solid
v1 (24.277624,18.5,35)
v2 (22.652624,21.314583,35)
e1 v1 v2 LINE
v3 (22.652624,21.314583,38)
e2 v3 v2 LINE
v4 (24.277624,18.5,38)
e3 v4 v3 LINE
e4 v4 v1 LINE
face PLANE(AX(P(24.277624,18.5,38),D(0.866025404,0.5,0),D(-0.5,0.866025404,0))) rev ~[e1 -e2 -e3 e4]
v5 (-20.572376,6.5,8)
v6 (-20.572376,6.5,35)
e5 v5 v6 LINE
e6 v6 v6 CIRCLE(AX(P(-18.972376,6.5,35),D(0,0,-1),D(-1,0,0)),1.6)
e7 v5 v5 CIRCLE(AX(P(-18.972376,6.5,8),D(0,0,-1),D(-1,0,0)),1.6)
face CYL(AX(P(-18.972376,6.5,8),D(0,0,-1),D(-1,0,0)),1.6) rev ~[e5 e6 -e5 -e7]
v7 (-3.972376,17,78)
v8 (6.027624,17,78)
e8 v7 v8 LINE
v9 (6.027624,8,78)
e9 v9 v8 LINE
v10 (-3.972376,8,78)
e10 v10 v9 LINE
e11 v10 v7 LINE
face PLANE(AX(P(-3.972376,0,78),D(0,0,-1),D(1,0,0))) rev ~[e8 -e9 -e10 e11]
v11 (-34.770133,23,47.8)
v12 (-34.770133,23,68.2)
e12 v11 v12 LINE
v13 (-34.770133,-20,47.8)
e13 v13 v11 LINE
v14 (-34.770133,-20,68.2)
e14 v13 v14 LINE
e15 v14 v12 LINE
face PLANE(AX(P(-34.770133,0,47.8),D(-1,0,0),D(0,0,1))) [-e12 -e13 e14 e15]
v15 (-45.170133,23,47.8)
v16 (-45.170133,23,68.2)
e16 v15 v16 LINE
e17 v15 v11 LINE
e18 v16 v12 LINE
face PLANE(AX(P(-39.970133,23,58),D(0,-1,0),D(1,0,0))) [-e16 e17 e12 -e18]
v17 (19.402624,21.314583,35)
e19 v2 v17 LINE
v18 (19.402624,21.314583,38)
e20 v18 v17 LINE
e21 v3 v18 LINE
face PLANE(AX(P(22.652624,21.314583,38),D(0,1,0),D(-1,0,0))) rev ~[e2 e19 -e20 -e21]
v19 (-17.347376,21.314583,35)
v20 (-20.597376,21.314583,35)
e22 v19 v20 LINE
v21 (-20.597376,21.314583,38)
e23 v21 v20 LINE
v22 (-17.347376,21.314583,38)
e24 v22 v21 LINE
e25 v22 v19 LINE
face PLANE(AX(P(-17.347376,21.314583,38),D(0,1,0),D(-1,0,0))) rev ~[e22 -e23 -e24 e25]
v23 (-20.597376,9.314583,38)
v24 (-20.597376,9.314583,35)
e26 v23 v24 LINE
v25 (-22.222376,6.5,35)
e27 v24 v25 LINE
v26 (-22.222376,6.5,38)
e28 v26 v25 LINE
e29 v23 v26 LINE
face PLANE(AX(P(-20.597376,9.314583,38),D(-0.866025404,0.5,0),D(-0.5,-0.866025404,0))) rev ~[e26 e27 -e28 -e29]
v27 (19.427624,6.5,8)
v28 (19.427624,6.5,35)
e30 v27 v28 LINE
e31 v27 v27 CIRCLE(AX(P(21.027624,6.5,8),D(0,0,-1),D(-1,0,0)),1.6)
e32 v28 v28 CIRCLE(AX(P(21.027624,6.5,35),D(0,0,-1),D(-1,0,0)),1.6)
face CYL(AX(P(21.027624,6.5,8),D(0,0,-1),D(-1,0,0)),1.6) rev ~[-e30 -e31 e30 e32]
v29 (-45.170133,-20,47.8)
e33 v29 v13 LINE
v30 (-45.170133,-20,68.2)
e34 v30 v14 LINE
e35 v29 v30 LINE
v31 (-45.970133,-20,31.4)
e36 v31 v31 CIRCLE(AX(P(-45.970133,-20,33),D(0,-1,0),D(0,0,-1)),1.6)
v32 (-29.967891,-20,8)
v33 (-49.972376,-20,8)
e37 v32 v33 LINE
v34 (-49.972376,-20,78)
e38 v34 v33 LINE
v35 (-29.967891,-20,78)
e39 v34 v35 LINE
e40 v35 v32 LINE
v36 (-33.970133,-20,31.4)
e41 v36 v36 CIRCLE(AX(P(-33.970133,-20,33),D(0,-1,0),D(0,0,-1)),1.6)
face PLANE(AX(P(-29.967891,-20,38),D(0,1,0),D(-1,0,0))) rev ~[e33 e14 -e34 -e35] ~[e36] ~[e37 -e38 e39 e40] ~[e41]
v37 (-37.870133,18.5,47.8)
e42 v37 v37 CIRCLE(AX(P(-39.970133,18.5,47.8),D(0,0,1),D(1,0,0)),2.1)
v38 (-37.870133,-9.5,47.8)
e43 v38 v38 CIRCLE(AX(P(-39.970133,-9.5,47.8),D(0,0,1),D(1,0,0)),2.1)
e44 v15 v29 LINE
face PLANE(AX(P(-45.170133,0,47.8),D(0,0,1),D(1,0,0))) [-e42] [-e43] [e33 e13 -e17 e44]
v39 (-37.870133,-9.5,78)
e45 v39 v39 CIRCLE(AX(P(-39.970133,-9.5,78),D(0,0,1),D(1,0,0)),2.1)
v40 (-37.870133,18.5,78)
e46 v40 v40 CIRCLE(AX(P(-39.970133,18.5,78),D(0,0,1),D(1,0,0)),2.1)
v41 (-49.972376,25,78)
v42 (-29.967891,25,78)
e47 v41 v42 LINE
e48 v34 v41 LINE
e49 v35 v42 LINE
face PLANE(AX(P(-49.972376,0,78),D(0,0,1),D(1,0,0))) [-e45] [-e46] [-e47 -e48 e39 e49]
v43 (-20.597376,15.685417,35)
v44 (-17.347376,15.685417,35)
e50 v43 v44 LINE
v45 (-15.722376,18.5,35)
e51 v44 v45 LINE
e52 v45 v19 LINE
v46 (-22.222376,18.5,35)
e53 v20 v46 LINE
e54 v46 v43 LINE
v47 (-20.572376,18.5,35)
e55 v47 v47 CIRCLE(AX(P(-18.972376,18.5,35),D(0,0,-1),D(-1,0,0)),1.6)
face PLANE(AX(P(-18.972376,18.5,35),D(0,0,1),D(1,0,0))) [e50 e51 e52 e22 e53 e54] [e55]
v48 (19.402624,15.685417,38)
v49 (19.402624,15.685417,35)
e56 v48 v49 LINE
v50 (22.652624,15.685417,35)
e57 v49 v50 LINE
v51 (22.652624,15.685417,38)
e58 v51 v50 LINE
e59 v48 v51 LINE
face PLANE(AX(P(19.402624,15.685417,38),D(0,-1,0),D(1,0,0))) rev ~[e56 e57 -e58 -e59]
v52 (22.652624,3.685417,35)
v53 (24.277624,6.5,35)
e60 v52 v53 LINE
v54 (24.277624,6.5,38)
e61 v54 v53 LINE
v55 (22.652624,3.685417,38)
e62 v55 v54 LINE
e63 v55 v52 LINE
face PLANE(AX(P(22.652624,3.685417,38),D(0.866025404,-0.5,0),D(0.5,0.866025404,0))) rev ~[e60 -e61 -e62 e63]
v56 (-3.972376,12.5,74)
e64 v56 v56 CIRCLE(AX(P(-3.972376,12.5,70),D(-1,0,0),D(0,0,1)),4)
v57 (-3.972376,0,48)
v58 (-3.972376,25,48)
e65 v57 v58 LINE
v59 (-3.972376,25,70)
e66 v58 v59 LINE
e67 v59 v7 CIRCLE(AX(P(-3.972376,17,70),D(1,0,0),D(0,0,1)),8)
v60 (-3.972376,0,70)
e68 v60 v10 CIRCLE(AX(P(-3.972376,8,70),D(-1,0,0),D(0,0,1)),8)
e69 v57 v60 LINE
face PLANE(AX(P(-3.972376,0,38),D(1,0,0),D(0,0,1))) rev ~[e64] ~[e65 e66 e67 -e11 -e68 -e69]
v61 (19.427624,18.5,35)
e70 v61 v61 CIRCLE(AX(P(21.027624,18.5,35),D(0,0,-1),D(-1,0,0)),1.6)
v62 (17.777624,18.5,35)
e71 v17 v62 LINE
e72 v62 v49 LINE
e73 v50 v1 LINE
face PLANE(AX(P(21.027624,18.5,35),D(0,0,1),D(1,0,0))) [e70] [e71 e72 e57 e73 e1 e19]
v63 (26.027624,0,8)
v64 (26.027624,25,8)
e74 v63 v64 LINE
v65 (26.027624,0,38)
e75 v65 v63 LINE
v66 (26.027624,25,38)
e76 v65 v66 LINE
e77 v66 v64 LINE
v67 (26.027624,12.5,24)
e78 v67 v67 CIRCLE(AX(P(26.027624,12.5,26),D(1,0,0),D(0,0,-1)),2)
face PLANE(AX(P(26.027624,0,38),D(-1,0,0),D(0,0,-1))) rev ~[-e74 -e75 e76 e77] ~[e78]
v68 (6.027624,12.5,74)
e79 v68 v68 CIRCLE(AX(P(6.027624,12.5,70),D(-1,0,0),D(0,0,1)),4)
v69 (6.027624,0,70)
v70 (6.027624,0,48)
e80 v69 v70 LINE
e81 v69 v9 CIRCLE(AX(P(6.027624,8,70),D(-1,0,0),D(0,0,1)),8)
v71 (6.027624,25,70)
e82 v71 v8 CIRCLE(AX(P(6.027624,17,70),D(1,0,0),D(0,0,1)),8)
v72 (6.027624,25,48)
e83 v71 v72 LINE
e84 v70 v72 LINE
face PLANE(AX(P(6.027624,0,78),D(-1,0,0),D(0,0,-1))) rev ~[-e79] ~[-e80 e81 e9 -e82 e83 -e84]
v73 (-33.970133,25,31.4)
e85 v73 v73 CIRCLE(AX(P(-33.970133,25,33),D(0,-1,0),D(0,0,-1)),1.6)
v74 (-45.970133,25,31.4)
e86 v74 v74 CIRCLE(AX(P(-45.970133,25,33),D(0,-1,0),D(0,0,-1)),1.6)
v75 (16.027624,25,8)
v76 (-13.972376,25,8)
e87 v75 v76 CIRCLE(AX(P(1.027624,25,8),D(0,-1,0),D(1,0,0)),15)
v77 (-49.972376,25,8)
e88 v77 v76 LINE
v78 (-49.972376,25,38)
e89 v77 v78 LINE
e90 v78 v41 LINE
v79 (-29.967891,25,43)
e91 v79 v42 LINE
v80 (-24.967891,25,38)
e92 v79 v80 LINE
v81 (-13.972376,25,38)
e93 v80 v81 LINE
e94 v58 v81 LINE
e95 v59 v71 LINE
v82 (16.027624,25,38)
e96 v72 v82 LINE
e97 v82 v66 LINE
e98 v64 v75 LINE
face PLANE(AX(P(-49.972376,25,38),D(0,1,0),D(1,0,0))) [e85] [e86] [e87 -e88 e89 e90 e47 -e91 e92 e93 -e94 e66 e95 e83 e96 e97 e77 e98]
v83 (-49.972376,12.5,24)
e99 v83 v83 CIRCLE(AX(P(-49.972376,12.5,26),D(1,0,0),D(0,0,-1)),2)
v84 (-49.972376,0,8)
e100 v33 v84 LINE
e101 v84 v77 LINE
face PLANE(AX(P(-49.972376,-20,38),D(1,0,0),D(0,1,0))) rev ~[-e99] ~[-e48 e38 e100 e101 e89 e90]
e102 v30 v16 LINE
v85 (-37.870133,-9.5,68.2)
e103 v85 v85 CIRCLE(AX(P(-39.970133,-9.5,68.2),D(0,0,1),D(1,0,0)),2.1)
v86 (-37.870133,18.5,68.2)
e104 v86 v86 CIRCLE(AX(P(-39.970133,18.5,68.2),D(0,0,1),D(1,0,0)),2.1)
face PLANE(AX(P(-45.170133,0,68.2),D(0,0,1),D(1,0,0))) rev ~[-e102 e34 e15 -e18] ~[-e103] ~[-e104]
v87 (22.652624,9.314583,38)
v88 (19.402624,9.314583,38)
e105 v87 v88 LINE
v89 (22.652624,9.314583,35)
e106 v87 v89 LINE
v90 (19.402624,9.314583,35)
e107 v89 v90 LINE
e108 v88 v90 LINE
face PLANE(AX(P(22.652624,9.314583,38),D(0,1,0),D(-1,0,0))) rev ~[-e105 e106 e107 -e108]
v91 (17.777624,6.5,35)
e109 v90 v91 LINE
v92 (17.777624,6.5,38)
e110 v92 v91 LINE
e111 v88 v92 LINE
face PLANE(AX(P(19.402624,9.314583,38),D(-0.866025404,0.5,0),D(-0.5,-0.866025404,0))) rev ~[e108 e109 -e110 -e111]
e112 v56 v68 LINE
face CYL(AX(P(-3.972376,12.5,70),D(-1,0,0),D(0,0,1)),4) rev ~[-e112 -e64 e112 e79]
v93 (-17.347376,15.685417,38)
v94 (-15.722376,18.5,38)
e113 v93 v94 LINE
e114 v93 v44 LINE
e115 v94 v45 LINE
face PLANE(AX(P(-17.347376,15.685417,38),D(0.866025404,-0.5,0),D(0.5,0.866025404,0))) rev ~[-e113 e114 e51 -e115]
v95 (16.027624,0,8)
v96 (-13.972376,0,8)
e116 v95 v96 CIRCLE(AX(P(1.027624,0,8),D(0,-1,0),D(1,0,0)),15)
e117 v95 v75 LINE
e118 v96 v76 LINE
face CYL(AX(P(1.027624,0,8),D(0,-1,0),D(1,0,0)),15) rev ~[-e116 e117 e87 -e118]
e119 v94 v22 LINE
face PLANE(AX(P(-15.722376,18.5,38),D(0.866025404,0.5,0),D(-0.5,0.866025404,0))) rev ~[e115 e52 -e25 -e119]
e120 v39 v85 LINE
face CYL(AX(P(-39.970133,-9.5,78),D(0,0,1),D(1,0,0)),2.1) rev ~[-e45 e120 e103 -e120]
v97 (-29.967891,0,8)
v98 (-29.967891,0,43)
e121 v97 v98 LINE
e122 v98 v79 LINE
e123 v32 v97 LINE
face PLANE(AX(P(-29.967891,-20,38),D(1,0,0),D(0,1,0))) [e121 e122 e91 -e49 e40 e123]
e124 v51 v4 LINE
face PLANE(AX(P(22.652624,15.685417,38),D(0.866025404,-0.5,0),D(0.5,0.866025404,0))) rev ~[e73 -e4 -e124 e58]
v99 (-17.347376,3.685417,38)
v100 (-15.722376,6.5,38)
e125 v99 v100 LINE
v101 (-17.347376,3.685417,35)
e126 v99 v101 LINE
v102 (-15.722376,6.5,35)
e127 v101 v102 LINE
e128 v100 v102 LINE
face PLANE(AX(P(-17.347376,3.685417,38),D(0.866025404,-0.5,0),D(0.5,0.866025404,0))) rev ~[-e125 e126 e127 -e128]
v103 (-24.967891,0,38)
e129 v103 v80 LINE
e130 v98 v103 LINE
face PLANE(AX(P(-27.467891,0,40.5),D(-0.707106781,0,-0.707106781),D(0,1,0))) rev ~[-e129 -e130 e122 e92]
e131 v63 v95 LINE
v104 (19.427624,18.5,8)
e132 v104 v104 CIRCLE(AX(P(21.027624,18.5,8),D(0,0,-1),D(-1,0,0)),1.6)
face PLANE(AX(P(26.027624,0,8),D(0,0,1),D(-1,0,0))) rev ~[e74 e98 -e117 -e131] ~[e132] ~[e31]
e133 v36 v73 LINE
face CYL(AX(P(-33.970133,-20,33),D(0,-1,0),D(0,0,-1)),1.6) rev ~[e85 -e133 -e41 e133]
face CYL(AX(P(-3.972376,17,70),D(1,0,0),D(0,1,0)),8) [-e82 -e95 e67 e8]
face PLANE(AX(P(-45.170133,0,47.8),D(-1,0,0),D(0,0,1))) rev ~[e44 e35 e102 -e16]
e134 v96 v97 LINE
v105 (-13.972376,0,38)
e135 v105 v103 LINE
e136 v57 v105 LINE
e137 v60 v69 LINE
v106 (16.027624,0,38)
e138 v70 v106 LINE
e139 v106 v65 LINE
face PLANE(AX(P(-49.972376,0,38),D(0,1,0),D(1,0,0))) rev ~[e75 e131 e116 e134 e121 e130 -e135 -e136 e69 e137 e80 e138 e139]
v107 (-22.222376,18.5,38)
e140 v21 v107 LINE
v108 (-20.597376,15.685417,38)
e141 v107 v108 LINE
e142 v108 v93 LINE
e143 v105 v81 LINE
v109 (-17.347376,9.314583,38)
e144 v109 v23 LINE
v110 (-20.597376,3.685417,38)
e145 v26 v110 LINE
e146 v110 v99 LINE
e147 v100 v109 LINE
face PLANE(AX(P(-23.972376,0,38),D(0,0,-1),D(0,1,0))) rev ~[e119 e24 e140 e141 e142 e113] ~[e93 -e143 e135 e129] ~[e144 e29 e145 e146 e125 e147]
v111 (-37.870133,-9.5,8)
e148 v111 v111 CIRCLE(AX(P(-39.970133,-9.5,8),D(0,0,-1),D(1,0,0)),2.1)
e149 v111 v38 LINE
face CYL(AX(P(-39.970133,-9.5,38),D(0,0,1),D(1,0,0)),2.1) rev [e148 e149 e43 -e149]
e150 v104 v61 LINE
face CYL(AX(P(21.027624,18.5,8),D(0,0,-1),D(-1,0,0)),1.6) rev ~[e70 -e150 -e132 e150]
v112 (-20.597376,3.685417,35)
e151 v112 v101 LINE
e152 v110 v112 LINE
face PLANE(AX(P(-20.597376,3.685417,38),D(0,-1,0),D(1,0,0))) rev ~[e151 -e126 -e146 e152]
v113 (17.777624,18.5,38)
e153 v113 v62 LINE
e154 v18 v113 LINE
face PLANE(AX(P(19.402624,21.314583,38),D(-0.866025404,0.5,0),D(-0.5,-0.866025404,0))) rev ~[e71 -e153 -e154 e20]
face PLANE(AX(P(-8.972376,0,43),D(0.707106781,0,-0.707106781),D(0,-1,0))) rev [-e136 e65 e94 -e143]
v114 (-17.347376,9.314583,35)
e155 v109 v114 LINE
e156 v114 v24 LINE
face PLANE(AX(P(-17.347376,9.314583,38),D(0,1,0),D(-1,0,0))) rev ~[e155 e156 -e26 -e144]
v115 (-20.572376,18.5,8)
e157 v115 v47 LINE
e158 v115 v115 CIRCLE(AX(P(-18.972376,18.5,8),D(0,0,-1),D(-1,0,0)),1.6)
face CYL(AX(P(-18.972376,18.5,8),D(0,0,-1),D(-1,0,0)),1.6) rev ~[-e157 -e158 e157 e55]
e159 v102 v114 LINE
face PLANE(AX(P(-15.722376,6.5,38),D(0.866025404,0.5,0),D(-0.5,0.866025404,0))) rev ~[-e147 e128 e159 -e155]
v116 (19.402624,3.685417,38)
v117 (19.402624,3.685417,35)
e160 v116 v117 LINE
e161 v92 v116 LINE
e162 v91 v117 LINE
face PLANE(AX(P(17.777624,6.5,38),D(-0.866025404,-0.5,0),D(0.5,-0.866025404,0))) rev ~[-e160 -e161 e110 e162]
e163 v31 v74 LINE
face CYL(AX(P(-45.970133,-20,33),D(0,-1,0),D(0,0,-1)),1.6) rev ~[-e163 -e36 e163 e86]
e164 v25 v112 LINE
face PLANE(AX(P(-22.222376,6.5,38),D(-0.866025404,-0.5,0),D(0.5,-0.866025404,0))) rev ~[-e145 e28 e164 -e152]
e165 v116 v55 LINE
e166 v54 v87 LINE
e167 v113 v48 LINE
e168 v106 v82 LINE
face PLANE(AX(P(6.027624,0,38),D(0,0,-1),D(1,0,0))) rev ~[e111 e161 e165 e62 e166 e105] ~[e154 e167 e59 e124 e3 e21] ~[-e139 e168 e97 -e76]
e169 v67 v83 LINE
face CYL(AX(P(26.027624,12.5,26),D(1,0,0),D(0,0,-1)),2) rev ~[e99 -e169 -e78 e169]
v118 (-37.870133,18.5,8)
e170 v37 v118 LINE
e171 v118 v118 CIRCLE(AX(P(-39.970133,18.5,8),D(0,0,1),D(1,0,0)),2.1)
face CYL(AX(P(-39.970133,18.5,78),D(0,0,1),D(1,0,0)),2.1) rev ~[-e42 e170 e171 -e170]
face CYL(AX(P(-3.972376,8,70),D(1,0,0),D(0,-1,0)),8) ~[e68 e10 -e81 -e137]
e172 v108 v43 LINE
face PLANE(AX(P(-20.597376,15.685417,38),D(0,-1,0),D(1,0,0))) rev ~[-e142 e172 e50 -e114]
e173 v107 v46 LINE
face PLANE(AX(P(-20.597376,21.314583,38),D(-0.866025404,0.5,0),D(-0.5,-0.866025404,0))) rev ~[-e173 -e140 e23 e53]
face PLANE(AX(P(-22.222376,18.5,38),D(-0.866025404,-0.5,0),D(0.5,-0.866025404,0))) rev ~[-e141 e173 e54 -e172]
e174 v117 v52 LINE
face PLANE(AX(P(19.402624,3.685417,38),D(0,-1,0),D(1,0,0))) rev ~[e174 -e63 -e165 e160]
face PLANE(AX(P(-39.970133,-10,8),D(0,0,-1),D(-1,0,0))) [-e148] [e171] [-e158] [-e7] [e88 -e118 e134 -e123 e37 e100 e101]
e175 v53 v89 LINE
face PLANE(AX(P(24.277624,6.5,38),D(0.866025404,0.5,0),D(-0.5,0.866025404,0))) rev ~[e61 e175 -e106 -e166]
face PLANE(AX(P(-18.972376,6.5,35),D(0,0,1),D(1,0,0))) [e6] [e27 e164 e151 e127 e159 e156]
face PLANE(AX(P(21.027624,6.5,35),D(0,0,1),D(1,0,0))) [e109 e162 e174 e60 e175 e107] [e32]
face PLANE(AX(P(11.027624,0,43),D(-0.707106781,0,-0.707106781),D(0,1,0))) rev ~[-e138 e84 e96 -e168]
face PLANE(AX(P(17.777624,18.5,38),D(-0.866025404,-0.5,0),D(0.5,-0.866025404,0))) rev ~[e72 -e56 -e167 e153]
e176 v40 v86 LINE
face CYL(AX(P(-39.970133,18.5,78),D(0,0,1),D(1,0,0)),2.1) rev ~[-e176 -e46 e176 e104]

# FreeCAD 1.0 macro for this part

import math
import FreeCAD as App
import Part
import Sketcher

V = App.Vector
Q = App.Units.Quantity


def edges_at(feature, points):
    """Names of the edges that pass closest to the given points."""
    edges = feature.Shape.Edges
    near = lambda p: min(range(len(edges)), key=lambda i: edges[i].distToShape(Part.Vertex(*p))[0])
    return sorted({f"Edge{near(p) + 1}" for p in points})

doc = App.newDocument("Part")
params = doc.addObject("Spreadsheet::Sheet", "Params")
for row, (alias, value) in enumerate([
    ("sketch1_radius", "15 mm"),
    ("sketch1_width", "10 mm"),
    ("sketch1_height", "30 mm"),
    ("sketch1_height2", "40 mm"),
    ("pad1_length", "25 mm"),
    ("sketch2_diameter", "8 mm"),
    ("sketch3_diameter", "3.2 mm"),
    ("sketch4_width", "3.25 mm"),
    ("pocket3_length", "3 mm"),
    ("fillet_radius", "8 mm"),
    ("chamfer_size", "10 mm"),
    ("sketch5_width", "25 mm"),
    ("sketch5_height", "30 mm"),
    ("pad2_length", "26 mm"),
    ("sketch6_height", "25 mm"),
    ("pad3_length", "40 mm"),
    ("sketch7_width", "10.4 mm"),
    ("sketch7_height", "20.4 mm"),
    ("pocket4_length", "23 mm"),
    ("sketch8_height", "40 mm"),
    ("sketch8_width", "10.4 mm"),
    ("sketch8_height2", "20.4 mm"),
    ("pad4_length", "20 mm"),
    ("sketch9_diameter", "4.2 mm"),
    ("chamfer2_size", "5 mm"),
    ("sketch10_diameter", "4 mm"),
    ("sketch11_diameter", "4.2 mm"),
    ("sketch11_height", "20 mm"),
    ("pad5_length", "30 mm"),
    ("sketch12_diameter", "3.2 mm"),
], start=1):
    params.set(f"A{row}", alias)
    params.set(f"B{row}", "=" + value)
    params.setAlias(f"B{row}", alias)

body = doc.addObject("PartDesign::Body", "Body")

sketch1 = body.newObject("Sketcher::SketchObject", "Sketch")
sketch1.AttachmentSupport = (doc.getObject("XZ_Plane"), [""])
sketch1.MapMode = "FlatFace"
sketch1.addGeometry([
    Part.LineSegment(V(-14, 8, 0), V(-24, 8, 0)),
    Part.LineSegment(V(-24, 8, 0), V(-24, 38, 0)),
    Part.LineSegment(V(-24, 38, 0), V(-4, 38, 0)),
    Part.LineSegment(V(-4, 38, 0), V(-4, 78, 0)),
    Part.LineSegment(V(-4, 78, 0), V(6, 78, 0)),
    Part.LineSegment(V(6, 78, 0), V(6, 38, 0)),
    Part.LineSegment(V(6, 38, 0), V(26, 38, 0)),
    Part.LineSegment(V(26, 38, 0), V(26, 8, 0)),
    Part.LineSegment(V(26, 8, 0), V(16, 8, 0)),
    Part.ArcOfCircle(Part.Circle(V(1, 8, 0), V(0, 0, 1), 15), math.radians(0), math.radians(180)),
], False)
sketch1.addConstraint([
    Sketcher.Constraint("Coincident", 0, 2, 1, 1),
    Sketcher.Constraint("Coincident", 1, 2, 2, 1),
    Sketcher.Constraint("Coincident", 2, 2, 3, 1),
    Sketcher.Constraint("Coincident", 3, 2, 4, 1),
    Sketcher.Constraint("Coincident", 4, 2, 5, 1),
    Sketcher.Constraint("Coincident", 5, 2, 6, 1),
    Sketcher.Constraint("Coincident", 6, 2, 7, 1),
    Sketcher.Constraint("Coincident", 7, 2, 8, 1),
    Sketcher.Constraint("Coincident", 8, 2, 9, 1),
    Sketcher.Constraint("Coincident", 9, 2, 0, 1),
    Sketcher.Constraint("Horizontal", 0),
    Sketcher.Constraint("Vertical", 1),
    Sketcher.Constraint("Horizontal", 2),
    Sketcher.Constraint("Vertical", 3),
    Sketcher.Constraint("Horizontal", 4),
    Sketcher.Constraint("Vertical", 5),
    Sketcher.Constraint("Horizontal", 6),
    Sketcher.Constraint("Vertical", 7),
    Sketcher.Constraint("Horizontal", 8),
    Sketcher.Constraint("Horizontal", 9, 3, 0, 2),
    Sketcher.Constraint("Horizontal", 2, 2, 5, 2),
    Sketcher.Constraint("Horizontal", 0, 2, 7, 2),
    Sketcher.Constraint("Equal", 0, 4),
    Sketcher.Constraint("Equal", 2, 6),
    Sketcher.Constraint("Equal", 4, 8),
    Sketcher.Constraint("Radius", 9, 15.0),
    Sketcher.Constraint("DistanceX", 0, 2, 0, 1, 10.0),
    Sketcher.Constraint("DistanceY", 1, 1, 1, 2, 30.0),
    Sketcher.Constraint("DistanceY", 3, 1, 3, 2, 40.0),
    Sketcher.Constraint("DistanceY", -1, 1, 9, 3, 8.0),
    Sketcher.Constraint("DistanceX", -1, 1, 9, 3, 1.027624),
])
sketch1.setExpression("Constraints[25]", "Params.sketch1_radius")
sketch1.setExpression("Constraints[26]", "Params.sketch1_width")
sketch1.setExpression("Constraints[27]", "Params.sketch1_height")
sketch1.setExpression("Constraints[28]", "Params.sketch1_height2")
pad1 = body.newObject("PartDesign::Pad", "Pad")
pad1.Profile = sketch1
pad1.setExpression("Length", "Params.pad1_length")
pad1.Reversed = True

sketch2 = body.newObject("Sketcher::SketchObject", "Sketch001")
sketch2.AttachmentSupport = (doc.getObject("YZ_Plane"), [""])
sketch2.MapMode = "FlatFace"
sketch2.AttachmentOffset = App.Placement(V(0, 0, -3.972376), App.Rotation())
sketch2.addGeometry(Part.Circle(V(12.5, 70, 0), V(0, 0, 1), 4), False)
sketch2.addConstraint([
    Sketcher.Constraint("Diameter", 0, 8.0),
    Sketcher.Constraint("DistanceY", -1, 1, 0, 3, 70.0),
    Sketcher.Constraint("DistanceX", -1, 1, 0, 3, 12.5),
])
sketch2.setExpression("Constraints[0]", "Params.sketch2_diameter")
pocket1 = body.newObject("PartDesign::Pocket", "Pocket")
pocket1.Profile = sketch2
pocket1.Type = "ThroughAll"
pocket1.Reversed = True

sketch3 = body.newObject("Sketcher::SketchObject", "Sketch002")
sketch3.AttachmentSupport = (doc.getObject("XY_Plane"), [""])
sketch3.MapMode = "FlatFace"
sketch3.AttachmentOffset = App.Placement(V(0, 0, 8), App.Rotation())
sketch3.addGeometry([
    Part.Circle(V(21, 6.5, 0), V(0, 0, 1), 1.6),
    Part.Circle(V(21, 18.5, 0), V(0, 0, 1), 1.6),
    Part.Circle(V(-19, 6.5, 0), V(0, 0, 1), 1.6),
    Part.Circle(V(-19, 18.5, 0), V(0, 0, 1), 1.6),
], False)
sketch3.addConstraint([
    Sketcher.Constraint("Equal", 0, 1),
    Sketcher.Constraint("Equal", 1, 2),
    Sketcher.Constraint("Equal", 2, 3),
    Sketcher.Constraint("Horizontal", 0, 3, 2, 3),
    Sketcher.Constraint("Horizontal", 1, 3, 3, 3),
    Sketcher.Constraint("Vertical", 0, 3, 1, 3),
    Sketcher.Constraint("Vertical", 2, 3, 3, 3),
    Sketcher.Constraint("Diameter", 0, 3.2),
    Sketcher.Constraint("DistanceY", 0, 3, 1, 3, 12.0),
    Sketcher.Constraint("DistanceX", 2, 3, 0, 3, 40.0),
    Sketcher.Constraint("DistanceY", -1, 1, 0, 3, 6.5),
    Sketcher.Constraint("DistanceX", -1, 1, 0, 3, 21.027624),
])
sketch3.setExpression("Constraints[7]", "Params.sketch3_diameter")
pocket2 = body.newObject("PartDesign::Pocket", "Pocket001")
pocket2.Profile = sketch3
pocket2.Type = "ThroughAll"
pocket2.Reversed = True

sketch4 = body.newObject("Sketcher::SketchObject", "Sketch003")
sketch4.AttachmentSupport = (doc.getObject("XY_Plane"), [""])
sketch4.MapMode = "FlatFace"
sketch4.AttachmentOffset = App.Placement(V(0, 0, 38), App.Rotation())
sketch4.addGeometry([
    Part.LineSegment(V(24.3, 18.5, 0), V(22.7, 21.3, 0)),
    Part.LineSegment(V(22.7, 21.3, 0), V(19.4, 21.3, 0)),
    Part.LineSegment(V(19.4, 21.3, 0), V(17.8, 18.5, 0)),
    Part.LineSegment(V(17.8, 18.5, 0), V(19.4, 15.7, 0)),
    Part.LineSegment(V(19.4, 15.7, 0), V(22.7, 15.7, 0)),
    Part.LineSegment(V(22.7, 15.7, 0), V(24.3, 18.5, 0)),
    Part.LineSegment(V(24.3, 6.5, 0), V(22.7, 9.3, 0)),
    Part.LineSegment(V(22.7, 9.3, 0), V(19.4, 9.3, 0)),
    Part.LineSegment(V(19.4, 9.3, 0), V(17.8, 6.5, 0)),
    Part.LineSegment(V(17.8, 6.5, 0), V(19.4, 3.7, 0)),
    Part.LineSegment(V(19.4, 3.7, 0), V(22.7, 3.7, 0)),
    Part.LineSegment(V(22.7, 3.7, 0), V(24.3, 6.5, 0)),
    Part.LineSegment(V(-15.7, 18.5, 0), V(-17.3, 21.3, 0)),
    Part.LineSegment(V(-17.3, 21.3, 0), V(-20.6, 21.3, 0)),
    Part.LineSegment(V(-20.6, 21.3, 0), V(-22.2, 18.5, 0)),
    Part.LineSegment(V(-22.2, 18.5, 0), V(-20.6, 15.7, 0)),
    Part.LineSegment(V(-20.6, 15.7, 0), V(-17.3, 15.7, 0)),
    Part.LineSegment(V(-17.3, 15.7, 0), V(-15.7, 18.5, 0)),
    Part.LineSegment(V(-15.7, 6.5, 0), V(-17.3, 9.3, 0)),
    Part.LineSegment(V(-17.3, 9.3, 0), V(-20.6, 9.3, 0)),
    Part.LineSegment(V(-20.6, 9.3, 0), V(-22.2, 6.5, 0)),
    Part.LineSegment(V(-22.2, 6.5, 0), V(-20.6, 3.7, 0)),
    Part.LineSegment(V(-20.6, 3.7, 0), V(-17.3, 3.7, 0)),
    Part.LineSegment(V(-17.3, 3.7, 0), V(-15.7, 6.5, 0)),
], False)
sketch4.addConstraint([
    Sketcher.Constraint("Coincident", 0, 2, 1, 1),
    Sketcher.Constraint("Coincident", 1, 2, 2, 1),
    Sketcher.Constraint("Coincident", 2, 2, 3, 1),
    Sketcher.Constraint("Coincident", 3, 2, 4, 1),
    Sketcher.Constraint("Coincident", 4, 2, 5, 1),
    Sketcher.Constraint("Coincident", 5, 2, 0, 1),
    Sketcher.Constraint("Coincident", 6, 2, 7, 1),
    Sketcher.Constraint("Coincident", 7, 2, 8, 1),
    Sketcher.Constraint("Coincident", 8, 2, 9, 1),
    Sketcher.Constraint("Coincident", 9, 2, 10, 1),
    Sketcher.Constraint("Coincident", 10, 2, 11, 1),
    Sketcher.Constraint("Coincident", 11, 2, 6, 1),
    Sketcher.Constraint("Coincident", 12, 2, 13, 1),
    Sketcher.Constraint("Coincident", 13, 2, 14, 1),
    Sketcher.Constraint("Coincident", 14, 2, 15, 1),
    Sketcher.Constraint("Coincident", 15, 2, 16, 1),
    Sketcher.Constraint("Coincident", 16, 2, 17, 1),
    Sketcher.Constraint("Coincident", 17, 2, 12, 1),
    Sketcher.Constraint("Coincident", 18, 2, 19, 1),
    Sketcher.Constraint("Coincident", 19, 2, 20, 1),
    Sketcher.Constraint("Coincident", 20, 2, 21, 1),
    Sketcher.Constraint("Coincident", 21, 2, 22, 1),
    Sketcher.Constraint("Coincident", 22, 2, 23, 1),
    Sketcher.Constraint("Coincident", 23, 2, 18, 1),
    Sketcher.Constraint("Horizontal", 1),
    Sketcher.Constraint("Horizontal", 4),
    Sketcher.Constraint("Horizontal", 7),
    Sketcher.Constraint("Horizontal", 10),
    Sketcher.Constraint("Horizontal", 13),
    Sketcher.Constraint("Horizontal", 16),
    Sketcher.Constraint("Horizontal", 19),
    Sketcher.Constraint("Horizontal", 22),
    Sketcher.Constraint("Parallel", 0, 3),
    Sketcher.Constraint("Parallel", 2, 5),
    Sketcher.Constraint("Parallel", 3, 6),
    Sketcher.Constraint("Parallel", 5, 8),
    Sketcher.Constraint("Parallel", 6, 9),
    Sketcher.Constraint("Parallel", 8, 11),
    Sketcher.Constraint("Parallel", 9, 12),
    Sketcher.Constraint("Parallel", 11, 14),
    Sketcher.Constraint("Parallel", 12, 15),
    Sketcher.Constraint("Parallel", 14, 17),
    Sketcher.Constraint("Parallel", 15, 18),
    Sketcher.Constraint("Parallel", 17, 20),
    Sketcher.Constraint("Parallel", 18, 21),
    Sketcher.Constraint("Parallel", 20, 23),
    Sketcher.Constraint("Horizontal", 2, 2, 5, 2),
    Sketcher.Constraint("Horizontal", 8, 2, 11, 2),
    Sketcher.Constraint("Horizontal", 1, 2, 12, 2),
    Sketcher.Constraint("Horizontal", 5, 2, 14, 2),
    Sketcher.Constraint("Horizontal", 4, 2, 15, 2),
    Sketcher.Constraint("Horizontal", 14, 2, 17, 2),
    Sketcher.Constraint("Horizontal", 7, 2, 18, 2),
    Sketcher.Constraint("Horizontal", 11, 2, 20, 2),
    Sketcher.Constraint("Horizontal", 10, 2, 21, 2),
    Sketcher.Constraint("Horizontal", 20, 2, 23, 2),
    Sketcher.Constraint("Vertical", 1, 2, 3, 2),
    Sketcher.Constraint("Vertical", 0, 2, 4, 2),
    Sketcher.Constraint("Vertical", 4, 2, 6, 2),
    Sketcher.Constraint("Vertical", 3, 2, 7, 2),
    Sketcher.Constraint("Vertical", 2, 2, 8, 2),
    Sketcher.Constraint("Vertical", 7, 2, 9, 2),
    Sketcher.Constraint("Vertical", 16, 2, 18, 2),
    Sketcher.Constraint("Vertical", 15, 2, 19, 2),
    Sketcher.Constraint("Equal", 10, 13),
    Sketcher.Constraint("Angle", 0, Q("120 deg")),
    Sketcher.Constraint("DistanceY", 6, 2, 0, 2, 12.0),
    Sketcher.Constraint("DistanceX", 13, 2, 1, 2, 40.0),
    Sketcher.Constraint("DistanceX", 1, 2, 1, 1, 3.25),
    Sketcher.Constraint("DistanceY", -1, 1, 2, 2, 18.5),
    Sketcher.Constraint("DistanceX", 2, 2, 5, 2, 6.5),
    Sketcher.Constraint("DistanceX", -1, 1, 0, 2, 22.652624),
])
sketch4.setExpression("Constraints[68]", "Params.sketch4_width")
pocket3 = body.newObject("PartDesign::Pocket", "Pocket002")
pocket3.Profile = sketch4
pocket3.setExpression("Length", "Params.pocket3_length")
doc.recompute()

fillet = body.newObject("PartDesign::Fillet", "Fillet")
fillet.Base = (pocket3, edges_at(pocket3, [(1.028, 0, 78), (1.028, 25, 78)]))
fillet.setExpression("Radius", "Params.fillet_radius")
doc.recompute()

chamfer = body.newObject("PartDesign::Chamfer", "Chamfer")
chamfer.Base = (fillet, edges_at(fillet, [(6.028, 12.5, 38), (-3.972, 12.5, 38)]))
chamfer.setExpression("Size", "Params.chamfer_size")

sketch5 = body.newObject("Sketcher::SketchObject", "Sketch004")
sketch5.AttachmentSupport = (doc.getObject("YZ_Plane"), [""])
sketch5.MapMode = "FlatFace"
sketch5.AttachmentOffset = App.Placement(V(0, 0, -23.972376), App.Rotation())
sketch5.addGeometry([
    Part.LineSegment(V(25, 8, 0), V(0, 8, 0)),
    Part.LineSegment(V(0, 8, 0), V(0, 38, 0)),
    Part.LineSegment(V(0, 38, 0), V(25, 38, 0)),
    Part.LineSegment(V(25, 38, 0), V(25, 8, 0)),
], False)
sketch5.addConstraint([
    Sketcher.Constraint("Coincident", 0, 2, 1, 1),
    Sketcher.Constraint("Coincident", 1, 2, 2, 1),
    Sketcher.Constraint("Coincident", 2, 2, 3, 1),
    Sketcher.Constraint("Coincident", 3, 2, 0, 1),
    Sketcher.Constraint("Horizontal", 0),
    Sketcher.Constraint("Vertical", 1),
    Sketcher.Constraint("Horizontal", 2),
    Sketcher.Constraint("Vertical", 3),
    Sketcher.Constraint("PointOnObject", 0, 2, -2),
    Sketcher.Constraint("DistanceX", 0, 2, 0, 1, 25.0),
    Sketcher.Constraint("DistanceY", 1, 1, 1, 2, 30.0),
    Sketcher.Constraint("DistanceY", -1, 1, 0, 2, 8.0),
])
sketch5.setExpression("Constraints[9]", "Params.sketch5_width")
sketch5.setExpression("Constraints[10]", "Params.sketch5_height")
pad2 = body.newObject("PartDesign::Pad", "Pad001")
pad2.Profile = sketch5
pad2.setExpression("Length", "Params.pad2_length")
pad2.Reversed = True

sketch6 = body.newObject("Sketcher::SketchObject", "Sketch005")
sketch6.AttachmentSupport = (doc.getObject("XY_Plane"), [""])
sketch6.MapMode = "FlatFace"
sketch6.AttachmentOffset = App.Placement(V(0, 0, 38), App.Rotation())
sketch6.addGeometry([
    Part.LineSegment(V(-50, 25, 0), V(-50, 0, 0)),
    Part.LineSegment(V(-50, 0, 0), V(-30, 0, 0)),
    Part.LineSegment(V(-30, 0, 0), V(-30, 25, 0)),
    Part.LineSegment(V(-30, 25, 0), V(-50, 25, 0)),
], False)
sketch6.addConstraint([
    Sketcher.Constraint("Coincident", 0, 2, 1, 1),
    Sketcher.Constraint("Coincident", 1, 2, 2, 1),
    Sketcher.Constraint("Coincident", 2, 2, 3, 1),
    Sketcher.Constraint("Coincident", 3, 2, 0, 1),
    Sketcher.Constraint("Vertical", 0),
    Sketcher.Constraint("Horizontal", 1),
    Sketcher.Constraint("Vertical", 2),
    Sketcher.Constraint("Horizontal", 3),
    Sketcher.Constraint("PointOnObject", 0, 2, -1),
    Sketcher.Constraint("DistanceY", 0, 2, 0, 1, 25.0),
    Sketcher.Constraint("DistanceX", 1, 1, 1, 2, 20.004484),
    Sketcher.Constraint("DistanceX", 1, 2, -1, 1, 29.967891),
])
sketch6.setExpression("Constraints[9]", "Params.sketch6_height")
pad3 = body.newObject("PartDesign::Pad", "Pad002")
pad3.Profile = sketch6
pad3.setExpression("Length", "Params.pad3_length")

sketch7 = body.newObject("Sketcher::SketchObject", "Sketch006")
sketch7.AttachmentSupport = (doc.getObject("XZ_Plane"), [""])
sketch7.MapMode = "FlatFace"
sketch7.addGeometry([
    Part.LineSegment(V(-45, 68, 0), V(-45, 48, 0)),
    Part.LineSegment(V(-45, 48, 0), V(-35, 48, 0)),
    Part.LineSegment(V(-35, 48, 0), V(-35, 68, 0)),
    Part.LineSegment(V(-35, 68, 0), V(-45, 68, 0)),
], False)
sketch7.addConstraint([
    Sketcher.Constraint("Coincident", 0, 2, 1, 1),
    Sketcher.Constraint("Coincident", 1, 2, 2, 1),
    Sketcher.Constraint("Coincident", 2, 2, 3, 1),
    Sketcher.Constraint("Coincident", 3, 2, 0, 1),
    Sketcher.Constraint("Vertical", 0),
    Sketcher.Constraint("Horizontal", 1),
    Sketcher.Constraint("Vertical", 2),
    Sketcher.Constraint("Horizontal", 3),
    Sketcher.Constraint("DistanceX", 1, 1, 1, 2, 10.4),
    Sketcher.Constraint("DistanceY", 0, 2, 0, 1, 20.4),
    Sketcher.Constraint("DistanceY", -1, 1, 0, 2, 47.8),
    Sketcher.Constraint("DistanceX", 0, 2, -1, 1, 45.170133),
])
sketch7.setExpression("Constraints[8]", "Params.sketch7_width")
sketch7.setExpression("Constraints[9]", "Params.sketch7_height")
pocket4 = body.newObject("PartDesign::Pocket", "Pocket003")
pocket4.Profile = sketch7
pocket4.setExpression("Length", "Params.pocket4_length")

sketch8 = body.newObject("Sketcher::SketchObject", "Sketch007")
sketch8.AttachmentSupport = (doc.getObject("XZ_Plane"), [""])
sketch8.MapMode = "FlatFace"
sketch8.addGeometry([
    Part.LineSegment(V(-50, 78, 0), V(-50, 38, 0)),
    Part.LineSegment(V(-50, 38, 0), V(-30, 38, 0)),
    Part.LineSegment(V(-30, 38, 0), V(-30, 78, 0)),
    Part.LineSegment(V(-30, 78, 0), V(-50, 78, 0)),
    Part.LineSegment(V(-35, 48, 0), V(-45, 48, 0)),
    Part.LineSegment(V(-45, 48, 0), V(-45, 68, 0)),
    Part.LineSegment(V(-45, 68, 0), V(-35, 68, 0)),
    Part.LineSegment(V(-35, 68, 0), V(-35, 48, 0)),
], False)
sketch8.addConstraint([
    Sketcher.Constraint("Coincident", 0, 2, 1, 1),
    Sketcher.Constraint("Coincident", 1, 2, 2, 1),
    Sketcher.Constraint("Coincident", 2, 2, 3, 1),
    Sketcher.Constraint("Coincident", 3, 2, 0, 1),
    Sketcher.Constraint("Coincident", 4, 2, 5, 1),
    Sketcher.Constraint("Coincident", 5, 2, 6, 1),
    Sketcher.Constraint("Coincident", 6, 2, 7, 1),
    Sketcher.Constraint("Coincident", 7, 2, 4, 1),
    Sketcher.Constraint("Vertical", 0),
    Sketcher.Constraint("Horizontal", 1),
    Sketcher.Constraint("Vertical", 2),
    Sketcher.Constraint("Horizontal", 3),
    Sketcher.Constraint("Horizontal", 4),
    Sketcher.Constraint("Vertical", 5),
    Sketcher.Constraint("Horizontal", 6),
    Sketcher.Constraint("Vertical", 7),
    Sketcher.Constraint("DistanceY", 0, 2, 0, 1, 40.0),
    Sketcher.Constraint("DistanceX", 4, 2, 4, 1, 10.4),
    Sketcher.Constraint("DistanceY", 5, 1, 5, 2, 20.4),
    Sketcher.Constraint("DistanceY", -1, 1, 0, 2, 38.0),
    Sketcher.Constraint("DistanceY", -1, 1, 4, 2, 47.8),
    Sketcher.Constraint("DistanceX", 1, 1, 1, 2, 20.004484),
    Sketcher.Constraint("DistanceX", 1, 2, -1, 1, 29.967891),
    Sketcher.Constraint("DistanceX", 4, 2, -1, 1, 45.170133),
])
sketch8.setExpression("Constraints[16]", "Params.sketch8_height")
sketch8.setExpression("Constraints[17]", "Params.sketch8_width")
sketch8.setExpression("Constraints[18]", "Params.sketch8_height2")
pad4 = body.newObject("PartDesign::Pad", "Pad003")
pad4.Profile = sketch8
pad4.setExpression("Length", "Params.pad4_length")

sketch9 = body.newObject("Sketcher::SketchObject", "Sketch008")
sketch9.AttachmentSupport = (doc.getObject("XY_Plane"), [""])
sketch9.MapMode = "FlatFace"
sketch9.AttachmentOffset = App.Placement(V(0, 0, 78), App.Rotation())
sketch9.addGeometry([
    Part.Circle(V(-40, -9.5, 0), V(0, 0, 1), 2.1),
    Part.Circle(V(-40, 18.5, 0), V(0, 0, 1), 2.1),
], False)
sketch9.addConstraint([
    Sketcher.Constraint("Equal", 0, 1),
    Sketcher.Constraint("Vertical", 0, 3, 1, 3),
    Sketcher.Constraint("Diameter", 0, 4.2),
    Sketcher.Constraint("DistanceY", 0, 3, 1, 3, 28.0),
    Sketcher.Constraint("DistanceY", 0, 3, -1, 1, 9.5),
    Sketcher.Constraint("DistanceX", 0, 3, -1, 1, 39.970133),
])
sketch9.setExpression("Constraints[2]", "Params.sketch9_diameter")
pocket5 = body.newObject("PartDesign::Pocket", "Pocket004")
pocket5.Profile = sketch9
pocket5.Type = "ThroughAll"
doc.recompute()

chamfer2 = body.newObject("PartDesign::Chamfer", "Chamfer001")
chamfer2.Base = (pocket5, edges_at(pocket5, [(-29.968, 12.5, 38)]))
chamfer2.setExpression("Size", "Params.chamfer2_size")

sketch10 = body.newObject("Sketcher::SketchObject", "Sketch009")
sketch10.AttachmentSupport = (doc.getObject("YZ_Plane"), [""])
sketch10.MapMode = "FlatFace"
sketch10.AttachmentOffset = App.Placement(V(0, 0, 26.027624), App.Rotation())
sketch10.addGeometry(Part.Circle(V(12.5, 26, 0), V(0, 0, 1), 2), False)
sketch10.addConstraint([
    Sketcher.Constraint("Diameter", 0, 4.0),
    Sketcher.Constraint("DistanceY", -1, 1, 0, 3, 26.0),
    Sketcher.Constraint("DistanceX", -1, 1, 0, 3, 12.5),
])
sketch10.setExpression("Constraints[0]", "Params.sketch10_diameter")
pocket6 = body.newObject("PartDesign::Pocket", "Pocket005")
pocket6.Profile = sketch10
pocket6.Type = "ThroughAll"

sketch11 = body.newObject("Sketcher::SketchObject", "Sketch010")
sketch11.AttachmentSupport = (doc.getObject("XY_Plane"), [""])
sketch11.MapMode = "FlatFace"
sketch11.AttachmentOffset = App.Placement(V(0, 0, 38), App.Rotation())
sketch11.addGeometry([
    Part.LineSegment(V(-30, 0, 0), V(-30, -20, 0)),
    Part.LineSegment(V(-30, -20, 0), V(-50, -20, 0)),
    Part.LineSegment(V(-50, -20, 0), V(-50, 0, 0)),
    Part.LineSegment(V(-50, 0, 0), V(-30, 0, 0)),
    Part.Circle(V(-40, -9.5, 0), V(0, 0, 1), 2.1),
], False)
sketch11.addConstraint([
    Sketcher.Constraint("Coincident", 0, 2, 1, 1),
    Sketcher.Constraint("Coincident", 1, 2, 2, 1),
    Sketcher.Constraint("Coincident", 2, 2, 3, 1),
    Sketcher.Constraint("Coincident", 3, 2, 0, 1),
    Sketcher.Constraint("Vertical", 0),
    Sketcher.Constraint("Horizontal", 1),
    Sketcher.Constraint("Vertical", 2),
    Sketcher.Constraint("Horizontal", 3),
    Sketcher.Constraint("PointOnObject", 2, 2, -1),
    Sketcher.Constraint("Diameter", 4, 4.2),
    Sketcher.Constraint("DistanceY", 0, 2, 0, 1, 20.0),
    Sketcher.Constraint("DistanceY", 4, 3, -1, 1, 9.5),
    Sketcher.Constraint("DistanceX", 1, 2, 1, 1, 20.004484),
    Sketcher.Constraint("DistanceX", 0, 2, -1, 1, 29.967891),
    Sketcher.Constraint("DistanceX", 4, 3, -1, 1, 39.970133),
])
sketch11.setExpression("Constraints[9]", "Params.sketch11_diameter")
sketch11.setExpression("Constraints[10]", "Params.sketch11_height")
pad5 = body.newObject("PartDesign::Pad", "Pad004")
pad5.Profile = sketch11
pad5.setExpression("Length", "Params.pad5_length")
pad5.Reversed = True

sketch12 = body.newObject("Sketcher::SketchObject", "Sketch011")
sketch12.AttachmentSupport = (doc.getObject("XZ_Plane"), [""])
sketch12.MapMode = "FlatFace"
sketch12.AttachmentOffset = App.Placement(V(0, 0, 20), App.Rotation())
sketch12.addGeometry([
    Part.Circle(V(-34, 33, 0), V(0, 0, 1), 1.6),
    Part.Circle(V(-46, 33, 0), V(0, 0, 1), 1.6),
], False)
sketch12.addConstraint([
    Sketcher.Constraint("Equal", 0, 1),
    Sketcher.Constraint("Horizontal", 0, 3, 1, 3),
    Sketcher.Constraint("Diameter", 0, 3.2),
    Sketcher.Constraint("DistanceY", -1, 1, 0, 3, 33.0),
    Sketcher.Constraint("DistanceX", 1, 3, 0, 3, 12.0),
    Sketcher.Constraint("DistanceX", 0, 3, -1, 1, 33.970133),
])
sketch12.setExpression("Constraints[2]", "Params.sketch12_diameter")
pocket7 = body.newObject("PartDesign::Pocket", "Pocket006")
pocket7.Profile = sketch12
pocket7.Type = "ThroughAll"

doc.recompute()
